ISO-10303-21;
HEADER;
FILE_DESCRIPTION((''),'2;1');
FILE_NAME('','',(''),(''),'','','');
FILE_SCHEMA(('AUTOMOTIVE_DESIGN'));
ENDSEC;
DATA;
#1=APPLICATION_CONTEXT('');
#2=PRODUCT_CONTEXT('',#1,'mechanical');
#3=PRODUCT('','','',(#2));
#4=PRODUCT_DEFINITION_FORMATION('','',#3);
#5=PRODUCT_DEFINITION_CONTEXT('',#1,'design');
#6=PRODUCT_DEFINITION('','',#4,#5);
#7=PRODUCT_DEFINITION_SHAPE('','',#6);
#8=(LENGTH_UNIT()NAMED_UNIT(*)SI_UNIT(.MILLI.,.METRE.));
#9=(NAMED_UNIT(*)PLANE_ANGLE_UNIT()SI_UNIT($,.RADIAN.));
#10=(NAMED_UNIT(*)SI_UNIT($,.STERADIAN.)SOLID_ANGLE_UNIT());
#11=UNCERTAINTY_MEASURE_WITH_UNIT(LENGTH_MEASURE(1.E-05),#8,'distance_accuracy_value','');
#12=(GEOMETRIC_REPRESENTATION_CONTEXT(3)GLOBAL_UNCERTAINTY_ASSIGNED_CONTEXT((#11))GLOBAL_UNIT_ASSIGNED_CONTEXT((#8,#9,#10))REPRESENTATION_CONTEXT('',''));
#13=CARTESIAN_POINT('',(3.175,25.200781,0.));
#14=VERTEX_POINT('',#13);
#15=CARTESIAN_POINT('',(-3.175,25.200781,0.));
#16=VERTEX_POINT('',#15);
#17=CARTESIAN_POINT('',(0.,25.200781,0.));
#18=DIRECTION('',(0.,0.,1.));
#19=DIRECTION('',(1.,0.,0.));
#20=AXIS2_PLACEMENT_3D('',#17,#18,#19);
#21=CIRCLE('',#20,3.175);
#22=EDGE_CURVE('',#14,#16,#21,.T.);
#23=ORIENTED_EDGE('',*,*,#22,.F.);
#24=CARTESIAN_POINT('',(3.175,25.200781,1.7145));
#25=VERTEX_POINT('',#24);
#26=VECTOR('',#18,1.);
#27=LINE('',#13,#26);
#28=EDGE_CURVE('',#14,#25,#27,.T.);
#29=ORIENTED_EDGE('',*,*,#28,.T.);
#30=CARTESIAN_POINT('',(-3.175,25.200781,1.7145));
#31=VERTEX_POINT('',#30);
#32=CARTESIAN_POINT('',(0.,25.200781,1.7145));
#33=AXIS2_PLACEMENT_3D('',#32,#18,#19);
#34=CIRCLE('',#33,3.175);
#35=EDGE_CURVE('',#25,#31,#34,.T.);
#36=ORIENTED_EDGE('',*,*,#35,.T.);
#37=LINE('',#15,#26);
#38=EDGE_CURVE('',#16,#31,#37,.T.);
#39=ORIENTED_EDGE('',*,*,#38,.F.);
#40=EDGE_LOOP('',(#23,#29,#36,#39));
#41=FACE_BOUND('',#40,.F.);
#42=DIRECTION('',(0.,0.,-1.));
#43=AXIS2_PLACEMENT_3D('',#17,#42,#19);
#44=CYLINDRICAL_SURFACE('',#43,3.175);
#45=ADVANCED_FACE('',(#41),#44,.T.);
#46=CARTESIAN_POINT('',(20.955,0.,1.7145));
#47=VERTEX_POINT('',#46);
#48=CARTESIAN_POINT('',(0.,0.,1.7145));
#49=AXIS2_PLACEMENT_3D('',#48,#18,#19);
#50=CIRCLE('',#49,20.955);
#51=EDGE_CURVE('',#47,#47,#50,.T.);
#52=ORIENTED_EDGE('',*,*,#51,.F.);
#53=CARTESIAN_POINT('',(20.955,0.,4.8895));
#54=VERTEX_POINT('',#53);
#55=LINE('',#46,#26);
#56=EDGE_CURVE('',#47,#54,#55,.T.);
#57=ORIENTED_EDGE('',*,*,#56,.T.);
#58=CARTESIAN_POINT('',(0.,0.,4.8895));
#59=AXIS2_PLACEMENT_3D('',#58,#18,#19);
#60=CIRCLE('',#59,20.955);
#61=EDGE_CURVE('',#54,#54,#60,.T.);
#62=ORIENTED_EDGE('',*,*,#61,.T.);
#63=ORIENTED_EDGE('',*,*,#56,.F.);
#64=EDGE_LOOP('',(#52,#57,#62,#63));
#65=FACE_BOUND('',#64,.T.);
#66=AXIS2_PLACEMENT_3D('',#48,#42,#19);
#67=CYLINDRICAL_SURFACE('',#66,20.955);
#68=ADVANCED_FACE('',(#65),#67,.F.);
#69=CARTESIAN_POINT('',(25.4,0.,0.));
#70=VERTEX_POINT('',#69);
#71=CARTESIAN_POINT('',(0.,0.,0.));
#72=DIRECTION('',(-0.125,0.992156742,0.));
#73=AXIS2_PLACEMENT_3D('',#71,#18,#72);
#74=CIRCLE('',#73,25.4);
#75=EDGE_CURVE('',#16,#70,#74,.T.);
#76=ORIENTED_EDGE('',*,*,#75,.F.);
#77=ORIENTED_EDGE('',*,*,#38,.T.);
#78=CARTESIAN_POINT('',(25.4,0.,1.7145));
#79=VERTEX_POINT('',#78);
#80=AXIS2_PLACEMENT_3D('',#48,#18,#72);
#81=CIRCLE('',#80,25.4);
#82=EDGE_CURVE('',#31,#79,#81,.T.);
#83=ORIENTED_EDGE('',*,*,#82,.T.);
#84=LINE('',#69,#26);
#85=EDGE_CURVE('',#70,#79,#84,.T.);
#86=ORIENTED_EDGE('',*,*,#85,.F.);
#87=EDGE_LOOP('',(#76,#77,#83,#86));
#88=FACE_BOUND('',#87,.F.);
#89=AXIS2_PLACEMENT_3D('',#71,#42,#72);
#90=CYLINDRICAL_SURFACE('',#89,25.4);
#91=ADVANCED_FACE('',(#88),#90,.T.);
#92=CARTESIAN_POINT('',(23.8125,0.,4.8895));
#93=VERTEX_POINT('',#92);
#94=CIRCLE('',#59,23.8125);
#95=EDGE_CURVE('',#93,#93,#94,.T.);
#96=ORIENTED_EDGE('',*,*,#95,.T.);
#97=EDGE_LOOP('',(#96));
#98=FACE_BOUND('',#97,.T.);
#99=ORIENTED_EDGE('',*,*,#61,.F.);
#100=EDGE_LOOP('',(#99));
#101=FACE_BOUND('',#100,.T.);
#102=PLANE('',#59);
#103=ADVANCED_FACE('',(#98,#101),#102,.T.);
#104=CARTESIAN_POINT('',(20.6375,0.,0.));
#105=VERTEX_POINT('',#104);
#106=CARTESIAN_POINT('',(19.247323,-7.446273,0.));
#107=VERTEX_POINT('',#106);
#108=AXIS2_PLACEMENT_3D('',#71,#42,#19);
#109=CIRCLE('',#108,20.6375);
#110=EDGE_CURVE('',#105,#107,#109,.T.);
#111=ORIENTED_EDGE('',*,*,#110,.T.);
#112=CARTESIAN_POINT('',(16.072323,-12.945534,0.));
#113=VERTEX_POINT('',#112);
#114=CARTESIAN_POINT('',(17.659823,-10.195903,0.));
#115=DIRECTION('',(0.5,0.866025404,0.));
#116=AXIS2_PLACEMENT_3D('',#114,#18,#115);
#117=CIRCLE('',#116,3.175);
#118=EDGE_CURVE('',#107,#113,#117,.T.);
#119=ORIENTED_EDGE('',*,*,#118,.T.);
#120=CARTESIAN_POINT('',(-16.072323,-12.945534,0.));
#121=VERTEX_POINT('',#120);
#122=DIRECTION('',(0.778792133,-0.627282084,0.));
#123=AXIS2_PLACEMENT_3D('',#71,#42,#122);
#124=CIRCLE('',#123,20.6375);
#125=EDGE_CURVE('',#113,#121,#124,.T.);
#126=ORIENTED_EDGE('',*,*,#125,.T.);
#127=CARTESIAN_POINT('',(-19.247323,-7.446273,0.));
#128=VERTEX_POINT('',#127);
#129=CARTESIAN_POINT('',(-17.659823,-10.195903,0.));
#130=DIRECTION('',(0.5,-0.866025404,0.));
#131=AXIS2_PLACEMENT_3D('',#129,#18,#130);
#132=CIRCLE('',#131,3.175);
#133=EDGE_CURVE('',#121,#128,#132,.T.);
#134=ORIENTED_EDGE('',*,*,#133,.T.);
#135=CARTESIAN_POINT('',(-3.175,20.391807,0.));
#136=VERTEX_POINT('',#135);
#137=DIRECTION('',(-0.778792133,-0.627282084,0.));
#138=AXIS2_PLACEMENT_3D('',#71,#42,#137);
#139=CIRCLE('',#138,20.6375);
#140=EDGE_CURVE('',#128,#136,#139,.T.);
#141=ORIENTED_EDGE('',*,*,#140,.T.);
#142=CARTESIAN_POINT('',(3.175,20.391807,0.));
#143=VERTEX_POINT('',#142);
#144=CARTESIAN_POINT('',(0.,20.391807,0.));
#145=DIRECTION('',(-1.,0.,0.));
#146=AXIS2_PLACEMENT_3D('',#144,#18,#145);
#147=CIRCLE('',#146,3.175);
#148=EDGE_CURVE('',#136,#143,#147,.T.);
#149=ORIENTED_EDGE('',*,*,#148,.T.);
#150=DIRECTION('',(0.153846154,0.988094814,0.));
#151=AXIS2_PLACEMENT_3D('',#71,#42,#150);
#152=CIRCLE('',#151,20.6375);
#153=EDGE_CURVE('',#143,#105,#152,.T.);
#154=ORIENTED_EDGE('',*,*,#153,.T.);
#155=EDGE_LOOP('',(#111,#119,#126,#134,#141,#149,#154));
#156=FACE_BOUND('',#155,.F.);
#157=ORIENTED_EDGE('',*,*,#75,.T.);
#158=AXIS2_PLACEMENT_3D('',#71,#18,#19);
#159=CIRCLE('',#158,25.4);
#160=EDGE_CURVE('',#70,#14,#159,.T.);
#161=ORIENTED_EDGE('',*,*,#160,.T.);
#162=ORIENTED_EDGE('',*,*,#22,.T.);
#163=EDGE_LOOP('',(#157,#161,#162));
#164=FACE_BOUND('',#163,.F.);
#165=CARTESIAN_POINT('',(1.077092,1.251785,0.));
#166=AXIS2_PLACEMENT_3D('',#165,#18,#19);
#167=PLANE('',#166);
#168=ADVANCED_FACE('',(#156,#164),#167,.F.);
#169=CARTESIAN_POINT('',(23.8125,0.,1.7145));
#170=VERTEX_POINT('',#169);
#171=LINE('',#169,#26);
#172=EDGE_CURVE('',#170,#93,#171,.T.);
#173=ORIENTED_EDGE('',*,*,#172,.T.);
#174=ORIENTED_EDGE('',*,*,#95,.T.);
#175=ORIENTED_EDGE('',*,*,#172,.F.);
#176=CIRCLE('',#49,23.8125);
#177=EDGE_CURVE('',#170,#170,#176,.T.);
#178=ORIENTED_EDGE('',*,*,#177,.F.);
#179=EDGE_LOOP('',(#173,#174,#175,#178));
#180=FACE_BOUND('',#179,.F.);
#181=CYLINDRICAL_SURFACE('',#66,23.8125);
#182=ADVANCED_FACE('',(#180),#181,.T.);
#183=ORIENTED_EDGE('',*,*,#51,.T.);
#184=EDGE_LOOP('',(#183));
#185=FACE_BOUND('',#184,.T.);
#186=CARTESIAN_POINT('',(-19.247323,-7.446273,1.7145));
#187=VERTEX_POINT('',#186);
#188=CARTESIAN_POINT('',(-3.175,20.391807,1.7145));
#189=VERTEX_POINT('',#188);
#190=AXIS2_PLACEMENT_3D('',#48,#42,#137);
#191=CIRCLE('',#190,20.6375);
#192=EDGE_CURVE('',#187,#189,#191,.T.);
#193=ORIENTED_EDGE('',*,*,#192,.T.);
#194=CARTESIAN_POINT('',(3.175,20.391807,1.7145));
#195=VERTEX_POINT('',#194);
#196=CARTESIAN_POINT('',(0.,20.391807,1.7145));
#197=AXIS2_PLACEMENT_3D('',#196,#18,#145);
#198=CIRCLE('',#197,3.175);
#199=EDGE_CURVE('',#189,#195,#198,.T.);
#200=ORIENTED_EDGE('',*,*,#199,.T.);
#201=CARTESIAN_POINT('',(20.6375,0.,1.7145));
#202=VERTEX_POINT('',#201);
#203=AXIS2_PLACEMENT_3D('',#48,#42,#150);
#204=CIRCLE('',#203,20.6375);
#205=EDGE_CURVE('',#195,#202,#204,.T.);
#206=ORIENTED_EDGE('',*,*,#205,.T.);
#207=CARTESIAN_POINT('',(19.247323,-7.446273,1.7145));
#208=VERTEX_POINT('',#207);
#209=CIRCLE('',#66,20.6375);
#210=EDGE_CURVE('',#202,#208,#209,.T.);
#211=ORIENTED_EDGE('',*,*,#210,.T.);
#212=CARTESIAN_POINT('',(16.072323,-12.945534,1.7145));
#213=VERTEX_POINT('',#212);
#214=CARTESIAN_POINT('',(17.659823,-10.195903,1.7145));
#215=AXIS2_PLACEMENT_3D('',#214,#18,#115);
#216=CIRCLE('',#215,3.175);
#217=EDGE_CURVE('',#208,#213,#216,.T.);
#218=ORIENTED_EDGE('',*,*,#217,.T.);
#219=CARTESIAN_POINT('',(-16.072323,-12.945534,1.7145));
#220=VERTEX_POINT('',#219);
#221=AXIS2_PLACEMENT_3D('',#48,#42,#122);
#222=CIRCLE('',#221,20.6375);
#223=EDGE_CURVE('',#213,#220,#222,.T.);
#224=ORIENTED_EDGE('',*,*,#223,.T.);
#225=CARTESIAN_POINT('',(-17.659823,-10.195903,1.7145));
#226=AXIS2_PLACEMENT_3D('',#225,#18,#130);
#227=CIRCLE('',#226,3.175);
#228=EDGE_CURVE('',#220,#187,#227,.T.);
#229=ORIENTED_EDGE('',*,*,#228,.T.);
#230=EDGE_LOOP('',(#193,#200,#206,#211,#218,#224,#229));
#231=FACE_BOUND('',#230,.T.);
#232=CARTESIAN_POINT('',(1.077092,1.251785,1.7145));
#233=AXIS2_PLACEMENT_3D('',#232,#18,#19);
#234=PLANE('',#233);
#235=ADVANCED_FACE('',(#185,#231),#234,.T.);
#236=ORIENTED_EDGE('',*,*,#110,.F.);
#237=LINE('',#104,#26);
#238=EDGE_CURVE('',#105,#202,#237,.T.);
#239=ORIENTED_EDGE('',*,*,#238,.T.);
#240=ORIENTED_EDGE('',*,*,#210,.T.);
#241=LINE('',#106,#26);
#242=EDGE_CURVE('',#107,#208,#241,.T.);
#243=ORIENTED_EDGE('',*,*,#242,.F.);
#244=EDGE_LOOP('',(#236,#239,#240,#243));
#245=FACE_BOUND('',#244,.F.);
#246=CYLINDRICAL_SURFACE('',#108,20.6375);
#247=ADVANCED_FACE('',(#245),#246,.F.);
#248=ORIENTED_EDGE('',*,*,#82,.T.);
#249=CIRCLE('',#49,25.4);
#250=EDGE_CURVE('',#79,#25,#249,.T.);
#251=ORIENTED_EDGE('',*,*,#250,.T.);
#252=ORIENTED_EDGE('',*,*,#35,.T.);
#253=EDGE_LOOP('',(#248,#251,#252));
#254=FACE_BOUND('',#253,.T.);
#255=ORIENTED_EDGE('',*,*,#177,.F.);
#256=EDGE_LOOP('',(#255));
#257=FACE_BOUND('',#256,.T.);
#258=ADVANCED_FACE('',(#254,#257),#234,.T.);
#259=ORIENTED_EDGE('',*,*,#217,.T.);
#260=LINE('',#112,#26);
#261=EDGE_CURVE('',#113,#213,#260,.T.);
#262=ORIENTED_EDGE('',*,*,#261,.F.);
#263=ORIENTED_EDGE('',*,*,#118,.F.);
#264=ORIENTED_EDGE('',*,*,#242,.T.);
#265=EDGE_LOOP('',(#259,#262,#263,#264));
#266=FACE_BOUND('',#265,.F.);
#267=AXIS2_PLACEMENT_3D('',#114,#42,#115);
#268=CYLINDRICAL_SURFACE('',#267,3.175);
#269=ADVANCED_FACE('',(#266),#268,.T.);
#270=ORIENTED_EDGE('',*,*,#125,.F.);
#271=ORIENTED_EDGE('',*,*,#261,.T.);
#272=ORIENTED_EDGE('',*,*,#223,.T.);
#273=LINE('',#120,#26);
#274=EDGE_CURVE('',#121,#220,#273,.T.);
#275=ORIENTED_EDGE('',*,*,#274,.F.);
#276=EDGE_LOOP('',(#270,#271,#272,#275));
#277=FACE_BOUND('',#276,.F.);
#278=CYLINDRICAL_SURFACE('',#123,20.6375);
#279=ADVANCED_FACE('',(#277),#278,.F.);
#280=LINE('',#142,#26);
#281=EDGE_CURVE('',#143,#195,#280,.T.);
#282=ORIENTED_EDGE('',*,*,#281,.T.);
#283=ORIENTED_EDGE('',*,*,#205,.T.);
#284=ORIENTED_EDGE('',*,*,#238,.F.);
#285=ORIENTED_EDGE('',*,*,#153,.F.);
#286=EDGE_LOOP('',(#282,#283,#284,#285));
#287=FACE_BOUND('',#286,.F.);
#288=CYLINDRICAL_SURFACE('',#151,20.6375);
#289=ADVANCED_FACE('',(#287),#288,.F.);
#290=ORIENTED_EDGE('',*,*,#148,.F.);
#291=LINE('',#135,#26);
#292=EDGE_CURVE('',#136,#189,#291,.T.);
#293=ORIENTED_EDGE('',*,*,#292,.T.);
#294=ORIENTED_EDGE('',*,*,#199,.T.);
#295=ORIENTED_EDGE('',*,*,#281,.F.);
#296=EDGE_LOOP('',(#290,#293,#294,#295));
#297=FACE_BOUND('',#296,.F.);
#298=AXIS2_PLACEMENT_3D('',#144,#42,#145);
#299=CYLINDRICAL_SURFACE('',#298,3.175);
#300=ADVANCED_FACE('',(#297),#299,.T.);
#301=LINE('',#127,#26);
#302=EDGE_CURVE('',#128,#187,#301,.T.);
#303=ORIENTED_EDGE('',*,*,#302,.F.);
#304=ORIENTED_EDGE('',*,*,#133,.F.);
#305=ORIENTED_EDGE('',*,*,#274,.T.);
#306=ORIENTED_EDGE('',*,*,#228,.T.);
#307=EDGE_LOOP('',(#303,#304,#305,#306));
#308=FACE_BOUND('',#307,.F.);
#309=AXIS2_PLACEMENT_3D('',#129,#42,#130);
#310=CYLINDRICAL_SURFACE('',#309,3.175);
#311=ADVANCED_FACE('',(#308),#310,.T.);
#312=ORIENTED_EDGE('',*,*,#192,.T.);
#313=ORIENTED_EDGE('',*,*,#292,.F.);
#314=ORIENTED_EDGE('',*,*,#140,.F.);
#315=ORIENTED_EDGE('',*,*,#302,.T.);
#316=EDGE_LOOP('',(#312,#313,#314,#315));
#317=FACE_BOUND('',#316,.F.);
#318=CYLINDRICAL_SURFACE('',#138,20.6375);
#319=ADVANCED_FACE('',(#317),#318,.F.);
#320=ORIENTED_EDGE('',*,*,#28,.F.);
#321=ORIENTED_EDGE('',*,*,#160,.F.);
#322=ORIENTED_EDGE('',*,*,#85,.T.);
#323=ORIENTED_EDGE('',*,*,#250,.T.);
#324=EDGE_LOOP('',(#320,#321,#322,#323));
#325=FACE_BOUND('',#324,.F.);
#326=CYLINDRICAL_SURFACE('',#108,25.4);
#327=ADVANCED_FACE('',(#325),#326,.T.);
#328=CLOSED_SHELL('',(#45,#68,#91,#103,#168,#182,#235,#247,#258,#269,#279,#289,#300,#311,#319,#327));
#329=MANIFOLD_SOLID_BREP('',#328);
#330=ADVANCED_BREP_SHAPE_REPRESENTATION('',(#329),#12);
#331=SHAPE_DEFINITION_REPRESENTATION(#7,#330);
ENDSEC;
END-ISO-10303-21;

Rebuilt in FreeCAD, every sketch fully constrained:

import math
import FreeCAD as App
import Part
import Sketcher
from FreeCAD import Vector
Q = App.Units.Quantity

doc = App.newDocument("Part")
body = doc.addObject("PartDesign::Body", "Body")

sketch1 = body.newObject("Sketcher::SketchObject", "Sketch")
sketch1.AttachmentSupport = (doc.getObject("XY_Plane"), [""])
sketch1.MapMode = "FlatFace"
sketch1.addGeometry([
    Part.ArcOfCircle(Part.Circle(Vector(0, 0, 0), Vector(0, 0, 1), 25.4), math.radians(97), math.radians(360)),
    Part.ArcOfCircle(Part.Circle(Vector(0, 0, 0), Vector(0, 0, 1), 25.4), math.radians(0), math.radians(83)),
    Part.ArcOfCircle(Part.Circle(Vector(0, 25.2, 0), Vector(0, 0, 1), 3.2), math.radians(0), math.radians(180)),
    Part.ArcOfCircle(Part.Circle(Vector(0, 0, 0), Vector(0, 0, 1), 20.6), math.radians(99), math.radians(201)),
    Part.ArcOfCircle(Part.Circle(Vector(0, 20.4, 0), Vector(0, 0, 1), 3.2), math.radians(180), math.radians(360)),
    Part.ArcOfCircle(Part.Circle(Vector(0, 0, 0), Vector(0, 0, 1), 20.6), math.radians(0), math.radians(81)),
    Part.ArcOfCircle(Part.Circle(Vector(0, 0, 0), Vector(0, 0, 1), 20.6), math.radians(-21), math.radians(0)),
    Part.ArcOfCircle(Part.Circle(Vector(17.7, -10.2, 0), Vector(0, 0, 1), 3.2), math.radians(60), math.radians(240)),
    Part.ArcOfCircle(Part.Circle(Vector(0, 0, 0), Vector(0, 0, 1), 20.6), math.radians(-141), math.radians(-39)),
    Part.ArcOfCircle(Part.Circle(Vector(-17.7, -10.2, 0), Vector(0, 0, 1), 3.2), math.radians(-60), math.radians(120)),
], False)
sketch1.addConstraint([
    Sketcher.Constraint("Tangent", 0, 2, 1, 1),
    Sketcher.Constraint("Coincident", 1, 2, 2, 1),
    Sketcher.Constraint("Coincident", 2, 2, 0, 1),
    Sketcher.Constraint("Coincident", 3, 1, 4, 1),
    Sketcher.Constraint("Coincident", 4, 2, 5, 2),
    Sketcher.Constraint("Tangent", 5, 1, 6, 2),
    Sketcher.Constraint("Coincident", 6, 1, 7, 1),
    Sketcher.Constraint("Coincident", 7, 2, 8, 2),
    Sketcher.Constraint("Coincident", 8, 1, 9, 1),
    Sketcher.Constraint("Coincident", 9, 2, 3, 2),
    Sketcher.Constraint("Coincident", 0, 3, -1, 1),
    Sketcher.Constraint("Coincident", 3, 3, -1, 1),
    Sketcher.Constraint("Coincident", 5, 3, -1, 1),
    Sketcher.Constraint("Coincident", 8, 3, -1, 1),
    Sketcher.Constraint("Equal", 0, 1),
    Sketcher.Constraint("Equal", 2, 4),
    Sketcher.Constraint("Equal", 3, 5),
    Sketcher.Constraint("Equal", 5, 6),
    Sketcher.Constraint("Equal", 4, 7),
    Sketcher.Constraint("Equal", 6, 8),
    Sketcher.Constraint("Equal", 7, 9),
    Sketcher.Constraint("Symmetric", 7, 3, 9, 3, -2),
    Sketcher.Constraint("PointOnObject", 2, 3, -2),
    Sketcher.Constraint("PointOnObject", 4, 3, -2),
    Sketcher.Constraint("PointOnObject", 0, 2, -1),
    Sketcher.Constraint("PointOnObject", 5, 1, -1),
    Sketcher.Constraint("Horizontal", 2, 3, 1, 2),
    Sketcher.Constraint("Horizontal", 4, 3, 3, 1),
    Sketcher.Constraint("Radius", 0, Q("1 in")),
    Sketcher.Constraint("Radius", 2, Q("0.125 in")),
    Sketcher.Constraint("Radius", 3, Q("0.8125 in")),
    Sketcher.Constraint("DistanceX", 7, 3, 6, 1, Q("0.0625 in")),
    Sketcher.Constraint("DistanceX", 7, 2, 7, 3, Q("0.0625 in")),
])
pad1 = body.newObject("PartDesign::Pad", "Pad")
pad1.Profile = sketch1
pad1.Length = Q("0.0675 in")

sketch2 = body.newObject("Sketcher::SketchObject", "Sketch001")
sketch2.AttachmentSupport = (doc.getObject("XY_Plane"), [""])
sketch2.MapMode = "FlatFace"
sketch2.AttachmentOffset = App.Placement(Vector(0, 0, 0.0675 * 25.4), App.Rotation())
sketch2.addGeometry([
    Part.Circle(Vector(0, 0, 0), Vector(0, 0, 1), 24),
    Part.Circle(Vector(0, 0, 0), Vector(0, 0, 1), 21),
], False)
sketch2.addConstraint([
    Sketcher.Constraint("Coincident", 0, 3, -1, 1),
    Sketcher.Constraint("Coincident", 1, 3, -1, 1),
    Sketcher.Constraint("Diameter", 1, Q("1.65 in")),
    Sketcher.Constraint("Diameter", 0, Q("1.875 in")),
])
pad2 = body.newObject("PartDesign::Pad", "Pad001")
pad2.Profile = sketch2
pad2.Length = Q("0.125 in")

doc.recompute()
